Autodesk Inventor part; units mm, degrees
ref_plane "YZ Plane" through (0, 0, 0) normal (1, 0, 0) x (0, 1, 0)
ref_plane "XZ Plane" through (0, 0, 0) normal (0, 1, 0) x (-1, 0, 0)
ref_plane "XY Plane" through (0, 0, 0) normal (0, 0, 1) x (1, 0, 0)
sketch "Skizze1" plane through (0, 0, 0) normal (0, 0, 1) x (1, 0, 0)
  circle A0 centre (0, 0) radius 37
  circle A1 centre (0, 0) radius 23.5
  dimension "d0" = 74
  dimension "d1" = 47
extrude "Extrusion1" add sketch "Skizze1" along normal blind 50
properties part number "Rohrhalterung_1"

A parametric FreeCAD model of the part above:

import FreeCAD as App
import Part
import Sketcher

V = App.Vector
Q = App.Units.Quantity

doc = App.newDocument("Part")
params = doc.addObject("Spreadsheet::Sheet", "Params")
for row, (alias, value) in enumerate([
    ("sketch1_diameter", "74 mm"),
    ("sketch1_diameter2", "47 mm"),
    ("pad1_length", "50 mm"),
], start=1):
    params.set(f"A{row}", alias)
    params.set(f"B{row}", "=" + value)
    params.setAlias(f"B{row}", alias)

body = doc.addObject("PartDesign::Body", "Body")

# Sketch on XY plane
sketch1 = doc.addObject("Sketcher::SketchObject", "Sketch")
body.addObject(sketch1)
sketch1.AttachmentSupport = (doc.XY_Plane, [""])
sketch1.MapMode = "FlatFace"
sketch1.addGeometry([
    Part.Circle(V(0, 0, 0), V(0, 0, 1), 37),
    Part.Circle(V(0, 0, 0), V(0, 0, 1), 23.5),
], False)
sketch1.addConstraint([
    Sketcher.Constraint("Coincident", 0, 3, -1, 1),
    Sketcher.Constraint("Coincident", 1, 3, -1, 1),
    Sketcher.Constraint("Diameter", 0, Q("74 mm")),
    Sketcher.Constraint("Diameter", 1, Q("47 mm")),
])
sketch1.setExpression("Constraints[2]", "Params.sketch1_diameter")
sketch1.setExpression("Constraints[3]", "Params.sketch1_diameter2")
pad1 = doc.addObject("PartDesign::Pad", "Pad")
body.addObject(pad1)
pad1.Profile = sketch1
pad1.setExpression("Length", "Params.pad1_length")

doc.recompute()
